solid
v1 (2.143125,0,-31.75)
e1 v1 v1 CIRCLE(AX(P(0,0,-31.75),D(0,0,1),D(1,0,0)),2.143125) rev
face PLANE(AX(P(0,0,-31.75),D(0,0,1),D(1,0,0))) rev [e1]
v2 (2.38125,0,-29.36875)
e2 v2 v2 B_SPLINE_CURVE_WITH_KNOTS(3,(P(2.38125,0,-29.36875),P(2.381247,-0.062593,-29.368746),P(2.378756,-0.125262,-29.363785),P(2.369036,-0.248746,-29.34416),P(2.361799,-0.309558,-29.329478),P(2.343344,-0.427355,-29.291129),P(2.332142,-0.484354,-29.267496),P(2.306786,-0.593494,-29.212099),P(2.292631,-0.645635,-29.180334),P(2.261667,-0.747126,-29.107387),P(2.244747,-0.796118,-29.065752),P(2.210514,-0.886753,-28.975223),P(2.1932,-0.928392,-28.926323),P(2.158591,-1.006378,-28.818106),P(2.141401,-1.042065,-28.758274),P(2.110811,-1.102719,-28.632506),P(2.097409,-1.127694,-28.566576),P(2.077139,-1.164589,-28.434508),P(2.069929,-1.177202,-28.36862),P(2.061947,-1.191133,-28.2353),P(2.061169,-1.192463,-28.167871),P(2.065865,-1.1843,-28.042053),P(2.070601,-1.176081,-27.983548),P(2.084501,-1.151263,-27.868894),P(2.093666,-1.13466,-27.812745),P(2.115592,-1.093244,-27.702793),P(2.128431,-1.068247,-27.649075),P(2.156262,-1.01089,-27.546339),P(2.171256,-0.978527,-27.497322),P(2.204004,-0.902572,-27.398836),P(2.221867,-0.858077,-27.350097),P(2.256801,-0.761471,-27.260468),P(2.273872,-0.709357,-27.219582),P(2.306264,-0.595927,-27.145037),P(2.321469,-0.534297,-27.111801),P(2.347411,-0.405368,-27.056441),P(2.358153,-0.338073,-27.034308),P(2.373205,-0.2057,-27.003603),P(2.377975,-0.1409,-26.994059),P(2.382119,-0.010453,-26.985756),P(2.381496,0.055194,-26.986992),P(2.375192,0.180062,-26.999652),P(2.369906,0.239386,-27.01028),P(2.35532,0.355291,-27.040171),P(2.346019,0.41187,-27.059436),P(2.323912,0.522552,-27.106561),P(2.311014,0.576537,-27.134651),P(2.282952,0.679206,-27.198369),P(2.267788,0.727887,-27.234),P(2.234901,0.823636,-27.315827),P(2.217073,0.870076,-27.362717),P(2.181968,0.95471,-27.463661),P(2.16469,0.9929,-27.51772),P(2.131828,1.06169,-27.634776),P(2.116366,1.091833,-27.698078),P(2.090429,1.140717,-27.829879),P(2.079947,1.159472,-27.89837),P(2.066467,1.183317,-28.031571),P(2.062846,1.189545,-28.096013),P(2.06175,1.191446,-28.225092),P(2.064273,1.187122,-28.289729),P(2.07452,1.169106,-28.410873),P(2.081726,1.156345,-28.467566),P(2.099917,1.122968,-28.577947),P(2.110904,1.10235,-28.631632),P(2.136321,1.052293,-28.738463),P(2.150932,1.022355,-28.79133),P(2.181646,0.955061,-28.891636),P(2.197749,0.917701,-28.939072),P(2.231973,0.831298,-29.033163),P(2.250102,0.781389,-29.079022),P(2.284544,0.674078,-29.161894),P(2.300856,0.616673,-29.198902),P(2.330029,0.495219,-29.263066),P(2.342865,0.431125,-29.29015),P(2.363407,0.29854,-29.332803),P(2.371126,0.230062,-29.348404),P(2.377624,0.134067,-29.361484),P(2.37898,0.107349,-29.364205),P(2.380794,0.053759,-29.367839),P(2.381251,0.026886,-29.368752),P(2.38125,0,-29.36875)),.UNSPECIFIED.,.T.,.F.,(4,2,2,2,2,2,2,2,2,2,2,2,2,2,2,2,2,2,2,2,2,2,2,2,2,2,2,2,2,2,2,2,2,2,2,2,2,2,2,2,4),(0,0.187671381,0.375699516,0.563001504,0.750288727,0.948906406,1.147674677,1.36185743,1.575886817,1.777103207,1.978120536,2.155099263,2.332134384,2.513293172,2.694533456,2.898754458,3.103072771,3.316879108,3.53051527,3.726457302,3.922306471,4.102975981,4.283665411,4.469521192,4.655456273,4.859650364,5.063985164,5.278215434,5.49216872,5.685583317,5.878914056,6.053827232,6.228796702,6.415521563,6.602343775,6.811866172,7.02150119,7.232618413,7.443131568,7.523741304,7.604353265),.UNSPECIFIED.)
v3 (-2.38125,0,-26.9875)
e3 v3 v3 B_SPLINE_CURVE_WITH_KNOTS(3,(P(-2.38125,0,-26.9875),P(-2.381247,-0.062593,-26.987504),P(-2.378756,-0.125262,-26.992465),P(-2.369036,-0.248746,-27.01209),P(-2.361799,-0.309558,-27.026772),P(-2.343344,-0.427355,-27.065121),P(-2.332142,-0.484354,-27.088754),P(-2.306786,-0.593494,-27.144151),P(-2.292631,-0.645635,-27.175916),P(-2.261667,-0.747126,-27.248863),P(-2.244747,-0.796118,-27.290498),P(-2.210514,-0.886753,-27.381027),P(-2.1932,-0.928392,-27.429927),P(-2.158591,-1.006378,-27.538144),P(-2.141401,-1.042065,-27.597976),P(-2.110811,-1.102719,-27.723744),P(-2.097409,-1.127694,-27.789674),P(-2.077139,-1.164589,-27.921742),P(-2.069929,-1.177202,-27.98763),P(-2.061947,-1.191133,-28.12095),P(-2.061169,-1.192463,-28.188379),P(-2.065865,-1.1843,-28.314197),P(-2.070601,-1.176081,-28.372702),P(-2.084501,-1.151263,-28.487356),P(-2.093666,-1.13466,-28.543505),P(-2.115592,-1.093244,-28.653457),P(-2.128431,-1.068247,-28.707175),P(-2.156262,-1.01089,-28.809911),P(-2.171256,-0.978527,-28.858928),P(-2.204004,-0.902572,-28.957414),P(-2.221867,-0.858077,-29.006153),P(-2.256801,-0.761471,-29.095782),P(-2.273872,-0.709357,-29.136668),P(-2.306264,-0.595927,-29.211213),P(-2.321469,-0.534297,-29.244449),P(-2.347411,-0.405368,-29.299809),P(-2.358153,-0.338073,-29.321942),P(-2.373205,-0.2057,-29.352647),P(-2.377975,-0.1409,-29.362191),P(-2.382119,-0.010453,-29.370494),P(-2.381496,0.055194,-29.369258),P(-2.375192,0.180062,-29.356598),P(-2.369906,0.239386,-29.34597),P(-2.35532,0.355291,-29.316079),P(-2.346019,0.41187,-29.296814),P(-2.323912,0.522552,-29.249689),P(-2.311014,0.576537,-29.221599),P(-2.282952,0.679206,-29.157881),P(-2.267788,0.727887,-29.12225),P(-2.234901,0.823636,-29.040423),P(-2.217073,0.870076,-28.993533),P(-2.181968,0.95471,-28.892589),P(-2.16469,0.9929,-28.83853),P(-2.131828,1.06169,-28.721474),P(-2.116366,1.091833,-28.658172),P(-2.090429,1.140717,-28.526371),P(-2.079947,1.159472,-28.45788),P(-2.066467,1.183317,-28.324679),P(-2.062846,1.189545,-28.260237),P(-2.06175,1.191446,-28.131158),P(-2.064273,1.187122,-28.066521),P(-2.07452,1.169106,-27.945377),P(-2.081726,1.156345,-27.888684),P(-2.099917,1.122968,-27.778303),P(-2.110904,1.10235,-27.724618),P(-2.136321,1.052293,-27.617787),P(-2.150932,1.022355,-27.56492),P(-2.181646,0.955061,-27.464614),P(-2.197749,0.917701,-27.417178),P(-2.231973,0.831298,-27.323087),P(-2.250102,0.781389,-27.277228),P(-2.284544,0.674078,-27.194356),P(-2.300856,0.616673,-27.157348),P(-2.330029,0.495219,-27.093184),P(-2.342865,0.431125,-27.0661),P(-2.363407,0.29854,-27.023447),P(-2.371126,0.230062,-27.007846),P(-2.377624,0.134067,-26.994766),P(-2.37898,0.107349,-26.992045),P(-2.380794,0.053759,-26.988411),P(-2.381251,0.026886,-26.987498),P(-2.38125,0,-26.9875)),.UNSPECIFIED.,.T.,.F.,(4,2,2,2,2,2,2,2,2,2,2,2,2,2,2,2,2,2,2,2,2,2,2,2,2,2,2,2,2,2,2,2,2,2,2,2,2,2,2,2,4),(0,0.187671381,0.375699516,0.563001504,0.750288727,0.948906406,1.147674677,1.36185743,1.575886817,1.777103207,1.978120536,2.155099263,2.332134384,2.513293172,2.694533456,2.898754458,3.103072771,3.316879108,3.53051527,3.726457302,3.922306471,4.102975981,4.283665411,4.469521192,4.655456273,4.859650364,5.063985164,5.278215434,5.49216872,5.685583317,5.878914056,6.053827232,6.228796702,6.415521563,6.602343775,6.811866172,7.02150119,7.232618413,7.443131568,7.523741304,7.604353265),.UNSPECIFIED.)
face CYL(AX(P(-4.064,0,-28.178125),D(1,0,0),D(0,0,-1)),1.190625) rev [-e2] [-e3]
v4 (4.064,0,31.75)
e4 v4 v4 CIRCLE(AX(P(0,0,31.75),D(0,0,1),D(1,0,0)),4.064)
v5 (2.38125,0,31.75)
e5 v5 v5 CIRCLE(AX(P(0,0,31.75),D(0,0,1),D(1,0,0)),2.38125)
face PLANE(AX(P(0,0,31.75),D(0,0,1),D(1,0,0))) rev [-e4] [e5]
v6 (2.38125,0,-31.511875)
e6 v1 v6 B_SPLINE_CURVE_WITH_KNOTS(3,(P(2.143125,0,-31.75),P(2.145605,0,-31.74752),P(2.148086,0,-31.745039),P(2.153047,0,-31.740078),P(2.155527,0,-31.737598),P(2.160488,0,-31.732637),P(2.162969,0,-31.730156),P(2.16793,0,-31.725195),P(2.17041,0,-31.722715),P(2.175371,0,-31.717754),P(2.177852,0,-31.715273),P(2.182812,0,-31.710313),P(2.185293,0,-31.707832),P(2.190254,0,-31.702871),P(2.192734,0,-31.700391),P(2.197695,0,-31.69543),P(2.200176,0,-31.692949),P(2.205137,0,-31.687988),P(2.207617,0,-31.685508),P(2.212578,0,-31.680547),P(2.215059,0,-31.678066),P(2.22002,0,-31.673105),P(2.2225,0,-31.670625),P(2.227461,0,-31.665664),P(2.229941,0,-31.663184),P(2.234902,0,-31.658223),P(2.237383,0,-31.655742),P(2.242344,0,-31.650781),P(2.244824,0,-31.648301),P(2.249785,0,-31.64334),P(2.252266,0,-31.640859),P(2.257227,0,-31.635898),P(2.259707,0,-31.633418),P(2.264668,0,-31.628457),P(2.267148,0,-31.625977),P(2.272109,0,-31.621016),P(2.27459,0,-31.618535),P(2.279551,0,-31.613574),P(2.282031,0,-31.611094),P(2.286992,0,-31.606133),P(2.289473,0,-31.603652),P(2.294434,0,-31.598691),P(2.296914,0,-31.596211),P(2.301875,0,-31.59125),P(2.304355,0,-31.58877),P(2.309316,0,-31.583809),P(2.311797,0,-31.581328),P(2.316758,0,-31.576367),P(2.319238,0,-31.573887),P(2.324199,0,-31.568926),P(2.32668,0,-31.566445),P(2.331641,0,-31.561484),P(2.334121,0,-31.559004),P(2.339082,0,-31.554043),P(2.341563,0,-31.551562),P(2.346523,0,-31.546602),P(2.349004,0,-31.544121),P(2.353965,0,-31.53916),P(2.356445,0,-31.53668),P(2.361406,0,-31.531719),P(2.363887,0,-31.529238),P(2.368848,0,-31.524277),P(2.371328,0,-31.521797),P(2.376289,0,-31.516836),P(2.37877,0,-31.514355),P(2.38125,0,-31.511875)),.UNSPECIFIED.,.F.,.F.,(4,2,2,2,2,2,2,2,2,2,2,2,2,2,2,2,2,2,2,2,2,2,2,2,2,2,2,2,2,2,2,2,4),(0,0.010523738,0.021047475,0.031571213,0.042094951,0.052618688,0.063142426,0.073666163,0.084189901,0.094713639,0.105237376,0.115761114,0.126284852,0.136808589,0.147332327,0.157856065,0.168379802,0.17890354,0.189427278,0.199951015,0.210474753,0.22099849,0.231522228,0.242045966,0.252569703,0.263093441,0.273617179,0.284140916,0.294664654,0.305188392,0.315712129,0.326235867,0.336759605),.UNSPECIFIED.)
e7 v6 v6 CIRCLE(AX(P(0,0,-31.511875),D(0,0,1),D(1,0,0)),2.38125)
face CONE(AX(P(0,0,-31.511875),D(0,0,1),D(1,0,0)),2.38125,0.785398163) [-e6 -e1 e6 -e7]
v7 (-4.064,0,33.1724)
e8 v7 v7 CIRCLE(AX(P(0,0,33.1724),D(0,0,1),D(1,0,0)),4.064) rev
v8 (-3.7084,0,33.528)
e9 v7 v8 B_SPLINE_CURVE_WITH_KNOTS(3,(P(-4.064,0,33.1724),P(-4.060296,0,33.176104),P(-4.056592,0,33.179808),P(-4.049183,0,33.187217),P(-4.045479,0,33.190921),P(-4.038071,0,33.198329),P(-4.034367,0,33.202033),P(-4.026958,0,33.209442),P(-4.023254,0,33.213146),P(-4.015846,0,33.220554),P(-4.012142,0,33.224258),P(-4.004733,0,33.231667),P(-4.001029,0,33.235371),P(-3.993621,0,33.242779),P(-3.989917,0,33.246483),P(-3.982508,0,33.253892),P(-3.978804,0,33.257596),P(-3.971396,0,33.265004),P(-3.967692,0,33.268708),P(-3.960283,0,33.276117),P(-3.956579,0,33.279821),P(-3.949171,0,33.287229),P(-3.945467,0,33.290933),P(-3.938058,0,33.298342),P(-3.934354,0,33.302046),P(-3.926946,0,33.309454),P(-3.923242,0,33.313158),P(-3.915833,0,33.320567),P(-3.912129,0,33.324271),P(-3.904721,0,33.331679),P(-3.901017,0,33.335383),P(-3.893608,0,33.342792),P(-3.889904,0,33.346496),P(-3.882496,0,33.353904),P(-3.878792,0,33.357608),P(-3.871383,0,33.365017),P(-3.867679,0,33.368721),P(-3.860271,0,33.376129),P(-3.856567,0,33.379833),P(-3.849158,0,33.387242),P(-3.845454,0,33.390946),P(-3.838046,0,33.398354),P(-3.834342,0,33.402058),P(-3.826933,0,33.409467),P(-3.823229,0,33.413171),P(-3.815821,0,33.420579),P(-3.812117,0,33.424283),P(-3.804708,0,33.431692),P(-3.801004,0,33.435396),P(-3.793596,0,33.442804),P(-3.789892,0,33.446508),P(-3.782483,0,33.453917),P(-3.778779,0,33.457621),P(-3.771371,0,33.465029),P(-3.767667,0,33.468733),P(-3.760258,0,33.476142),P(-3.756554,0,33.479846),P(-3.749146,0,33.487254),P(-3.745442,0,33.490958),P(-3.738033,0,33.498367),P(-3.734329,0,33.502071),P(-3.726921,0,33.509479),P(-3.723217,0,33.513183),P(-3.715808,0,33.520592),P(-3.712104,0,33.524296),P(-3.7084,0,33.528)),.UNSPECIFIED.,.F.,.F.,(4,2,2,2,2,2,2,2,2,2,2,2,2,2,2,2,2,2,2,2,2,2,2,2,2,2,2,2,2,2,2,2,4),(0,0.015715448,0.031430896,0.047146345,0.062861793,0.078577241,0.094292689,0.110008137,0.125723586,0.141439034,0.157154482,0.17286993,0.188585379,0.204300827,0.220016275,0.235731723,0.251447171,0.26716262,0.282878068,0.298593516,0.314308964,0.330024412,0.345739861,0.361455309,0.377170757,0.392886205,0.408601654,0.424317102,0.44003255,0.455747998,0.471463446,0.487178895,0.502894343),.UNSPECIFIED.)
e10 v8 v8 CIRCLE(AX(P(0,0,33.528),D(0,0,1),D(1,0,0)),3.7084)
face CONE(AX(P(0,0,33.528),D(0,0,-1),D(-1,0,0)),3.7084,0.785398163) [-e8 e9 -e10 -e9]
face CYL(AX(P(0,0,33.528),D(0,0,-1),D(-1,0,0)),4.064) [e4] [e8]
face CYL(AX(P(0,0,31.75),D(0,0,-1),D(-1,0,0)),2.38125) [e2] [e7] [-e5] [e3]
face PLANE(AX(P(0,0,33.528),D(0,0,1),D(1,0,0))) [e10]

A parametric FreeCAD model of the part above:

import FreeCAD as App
import Part
import Sketcher

V = App.Vector
Q = App.Units.Quantity


def edges_at(feature, points):
    """Names of the edges that pass closest to the given points."""
    edges = feature.Shape.Edges
    near = lambda p: min(range(len(edges)), key=lambda i: edges[i].distToShape(Part.Vertex(*p))[0])
    return sorted({f"Edge{near(p) + 1}" for p in points})

doc = App.newDocument("Part")
body = doc.addObject("PartDesign::Body", "Body")

# Sketch on XY plane
sketch1 = doc.addObject("Sketcher::SketchObject", "Sketch")
body.addObject(sketch1)
sketch1.AttachmentSupport = (doc.XY_Plane, [""])
sketch1.MapMode = "FlatFace"
sketch1.addGeometry(Part.Circle(V(0, 0, 0), V(0, 0, 1), 2.4), False)
sketch1.addConstraint(Sketcher.Constraint("Coincident", 0, 3, -1, 1))
sketch1.addConstraint(Sketcher.Constraint("Diameter", 0, Q("0.1875 in")))
pad1 = doc.addObject("PartDesign::Pad", "Pad")
body.addObject(pad1)
pad1.Profile = sketch1
pad1.Length = Q("2.5 in")
pad1.Midplane = True

# Sketch on XY plane
sketch2 = doc.addObject("Sketcher::SketchObject", "Sketch001")
body.addObject(sketch2)
sketch2.AttachmentSupport = (doc.XY_Plane, [""])
sketch2.MapMode = "FlatFace"
sketch2.AttachmentOffset = App.Placement(V(0, 0, 1.25 * 25.4), App.Rotation())
sketch2.addGeometry(Part.Circle(V(0, 0, 0), V(0, 0, 1), 4.1), False)
sketch2.addConstraint(Sketcher.Constraint("Coincident", 0, 3, -1, 1))
sketch2.addConstraint(Sketcher.Constraint("Diameter", 0, Q("0.32 in")))
pad2 = doc.addObject("PartDesign::Pad", "Pad001")
body.addObject(pad2)
pad2.Profile = sketch2
pad2.Length = Q("0.07 in")
doc.recompute()

chamfer = doc.addObject("PartDesign::Chamfer", "Chamfer")
body.addObject(chamfer)
chamfer.Base = (pad2, edges_at(pad2, [(-4.064, 0, 33.528)]))
chamfer.Size = Q("0.014 in")

# Sketch on YZ plane
sketch3 = doc.addObject("Sketcher::SketchObject", "Sketch002")
body.addObject(sketch3)
sketch3.AttachmentSupport = (doc.YZ_Plane, [""])
sketch3.MapMode = "FlatFace"
sketch3.addGeometry(Part.Circle(V(0, -28.2, 0), V(0, 0, 1), 1.2), False)
sketch3.addConstraint(Sketcher.Constraint("PointOnObject", 0, 3, -2))
sketch3.addConstraint(Sketcher.Constraint("Diameter", 0, Q("0.09375 in")))
sketch3.addConstraint(Sketcher.Constraint("DistanceY", 0, 3, -1, 1, Q("1.109375 in")))
pocket1 = doc.addObject("PartDesign::Pocket", "Pocket")
body.addObject(pocket1)
pocket1.Profile = sketch3
pocket1.Type = "ThroughAll"
pocket1.Midplane = True
doc.recompute()

chamfer2 = doc.addObject("PartDesign::Chamfer", "Chamfer001")
body.addObject(chamfer2)
chamfer2.Base = (pocket1, edges_at(pocket1, [(-2.381, 0, -31.75)]))
chamfer2.Size = 0.238125

doc.recompute()
